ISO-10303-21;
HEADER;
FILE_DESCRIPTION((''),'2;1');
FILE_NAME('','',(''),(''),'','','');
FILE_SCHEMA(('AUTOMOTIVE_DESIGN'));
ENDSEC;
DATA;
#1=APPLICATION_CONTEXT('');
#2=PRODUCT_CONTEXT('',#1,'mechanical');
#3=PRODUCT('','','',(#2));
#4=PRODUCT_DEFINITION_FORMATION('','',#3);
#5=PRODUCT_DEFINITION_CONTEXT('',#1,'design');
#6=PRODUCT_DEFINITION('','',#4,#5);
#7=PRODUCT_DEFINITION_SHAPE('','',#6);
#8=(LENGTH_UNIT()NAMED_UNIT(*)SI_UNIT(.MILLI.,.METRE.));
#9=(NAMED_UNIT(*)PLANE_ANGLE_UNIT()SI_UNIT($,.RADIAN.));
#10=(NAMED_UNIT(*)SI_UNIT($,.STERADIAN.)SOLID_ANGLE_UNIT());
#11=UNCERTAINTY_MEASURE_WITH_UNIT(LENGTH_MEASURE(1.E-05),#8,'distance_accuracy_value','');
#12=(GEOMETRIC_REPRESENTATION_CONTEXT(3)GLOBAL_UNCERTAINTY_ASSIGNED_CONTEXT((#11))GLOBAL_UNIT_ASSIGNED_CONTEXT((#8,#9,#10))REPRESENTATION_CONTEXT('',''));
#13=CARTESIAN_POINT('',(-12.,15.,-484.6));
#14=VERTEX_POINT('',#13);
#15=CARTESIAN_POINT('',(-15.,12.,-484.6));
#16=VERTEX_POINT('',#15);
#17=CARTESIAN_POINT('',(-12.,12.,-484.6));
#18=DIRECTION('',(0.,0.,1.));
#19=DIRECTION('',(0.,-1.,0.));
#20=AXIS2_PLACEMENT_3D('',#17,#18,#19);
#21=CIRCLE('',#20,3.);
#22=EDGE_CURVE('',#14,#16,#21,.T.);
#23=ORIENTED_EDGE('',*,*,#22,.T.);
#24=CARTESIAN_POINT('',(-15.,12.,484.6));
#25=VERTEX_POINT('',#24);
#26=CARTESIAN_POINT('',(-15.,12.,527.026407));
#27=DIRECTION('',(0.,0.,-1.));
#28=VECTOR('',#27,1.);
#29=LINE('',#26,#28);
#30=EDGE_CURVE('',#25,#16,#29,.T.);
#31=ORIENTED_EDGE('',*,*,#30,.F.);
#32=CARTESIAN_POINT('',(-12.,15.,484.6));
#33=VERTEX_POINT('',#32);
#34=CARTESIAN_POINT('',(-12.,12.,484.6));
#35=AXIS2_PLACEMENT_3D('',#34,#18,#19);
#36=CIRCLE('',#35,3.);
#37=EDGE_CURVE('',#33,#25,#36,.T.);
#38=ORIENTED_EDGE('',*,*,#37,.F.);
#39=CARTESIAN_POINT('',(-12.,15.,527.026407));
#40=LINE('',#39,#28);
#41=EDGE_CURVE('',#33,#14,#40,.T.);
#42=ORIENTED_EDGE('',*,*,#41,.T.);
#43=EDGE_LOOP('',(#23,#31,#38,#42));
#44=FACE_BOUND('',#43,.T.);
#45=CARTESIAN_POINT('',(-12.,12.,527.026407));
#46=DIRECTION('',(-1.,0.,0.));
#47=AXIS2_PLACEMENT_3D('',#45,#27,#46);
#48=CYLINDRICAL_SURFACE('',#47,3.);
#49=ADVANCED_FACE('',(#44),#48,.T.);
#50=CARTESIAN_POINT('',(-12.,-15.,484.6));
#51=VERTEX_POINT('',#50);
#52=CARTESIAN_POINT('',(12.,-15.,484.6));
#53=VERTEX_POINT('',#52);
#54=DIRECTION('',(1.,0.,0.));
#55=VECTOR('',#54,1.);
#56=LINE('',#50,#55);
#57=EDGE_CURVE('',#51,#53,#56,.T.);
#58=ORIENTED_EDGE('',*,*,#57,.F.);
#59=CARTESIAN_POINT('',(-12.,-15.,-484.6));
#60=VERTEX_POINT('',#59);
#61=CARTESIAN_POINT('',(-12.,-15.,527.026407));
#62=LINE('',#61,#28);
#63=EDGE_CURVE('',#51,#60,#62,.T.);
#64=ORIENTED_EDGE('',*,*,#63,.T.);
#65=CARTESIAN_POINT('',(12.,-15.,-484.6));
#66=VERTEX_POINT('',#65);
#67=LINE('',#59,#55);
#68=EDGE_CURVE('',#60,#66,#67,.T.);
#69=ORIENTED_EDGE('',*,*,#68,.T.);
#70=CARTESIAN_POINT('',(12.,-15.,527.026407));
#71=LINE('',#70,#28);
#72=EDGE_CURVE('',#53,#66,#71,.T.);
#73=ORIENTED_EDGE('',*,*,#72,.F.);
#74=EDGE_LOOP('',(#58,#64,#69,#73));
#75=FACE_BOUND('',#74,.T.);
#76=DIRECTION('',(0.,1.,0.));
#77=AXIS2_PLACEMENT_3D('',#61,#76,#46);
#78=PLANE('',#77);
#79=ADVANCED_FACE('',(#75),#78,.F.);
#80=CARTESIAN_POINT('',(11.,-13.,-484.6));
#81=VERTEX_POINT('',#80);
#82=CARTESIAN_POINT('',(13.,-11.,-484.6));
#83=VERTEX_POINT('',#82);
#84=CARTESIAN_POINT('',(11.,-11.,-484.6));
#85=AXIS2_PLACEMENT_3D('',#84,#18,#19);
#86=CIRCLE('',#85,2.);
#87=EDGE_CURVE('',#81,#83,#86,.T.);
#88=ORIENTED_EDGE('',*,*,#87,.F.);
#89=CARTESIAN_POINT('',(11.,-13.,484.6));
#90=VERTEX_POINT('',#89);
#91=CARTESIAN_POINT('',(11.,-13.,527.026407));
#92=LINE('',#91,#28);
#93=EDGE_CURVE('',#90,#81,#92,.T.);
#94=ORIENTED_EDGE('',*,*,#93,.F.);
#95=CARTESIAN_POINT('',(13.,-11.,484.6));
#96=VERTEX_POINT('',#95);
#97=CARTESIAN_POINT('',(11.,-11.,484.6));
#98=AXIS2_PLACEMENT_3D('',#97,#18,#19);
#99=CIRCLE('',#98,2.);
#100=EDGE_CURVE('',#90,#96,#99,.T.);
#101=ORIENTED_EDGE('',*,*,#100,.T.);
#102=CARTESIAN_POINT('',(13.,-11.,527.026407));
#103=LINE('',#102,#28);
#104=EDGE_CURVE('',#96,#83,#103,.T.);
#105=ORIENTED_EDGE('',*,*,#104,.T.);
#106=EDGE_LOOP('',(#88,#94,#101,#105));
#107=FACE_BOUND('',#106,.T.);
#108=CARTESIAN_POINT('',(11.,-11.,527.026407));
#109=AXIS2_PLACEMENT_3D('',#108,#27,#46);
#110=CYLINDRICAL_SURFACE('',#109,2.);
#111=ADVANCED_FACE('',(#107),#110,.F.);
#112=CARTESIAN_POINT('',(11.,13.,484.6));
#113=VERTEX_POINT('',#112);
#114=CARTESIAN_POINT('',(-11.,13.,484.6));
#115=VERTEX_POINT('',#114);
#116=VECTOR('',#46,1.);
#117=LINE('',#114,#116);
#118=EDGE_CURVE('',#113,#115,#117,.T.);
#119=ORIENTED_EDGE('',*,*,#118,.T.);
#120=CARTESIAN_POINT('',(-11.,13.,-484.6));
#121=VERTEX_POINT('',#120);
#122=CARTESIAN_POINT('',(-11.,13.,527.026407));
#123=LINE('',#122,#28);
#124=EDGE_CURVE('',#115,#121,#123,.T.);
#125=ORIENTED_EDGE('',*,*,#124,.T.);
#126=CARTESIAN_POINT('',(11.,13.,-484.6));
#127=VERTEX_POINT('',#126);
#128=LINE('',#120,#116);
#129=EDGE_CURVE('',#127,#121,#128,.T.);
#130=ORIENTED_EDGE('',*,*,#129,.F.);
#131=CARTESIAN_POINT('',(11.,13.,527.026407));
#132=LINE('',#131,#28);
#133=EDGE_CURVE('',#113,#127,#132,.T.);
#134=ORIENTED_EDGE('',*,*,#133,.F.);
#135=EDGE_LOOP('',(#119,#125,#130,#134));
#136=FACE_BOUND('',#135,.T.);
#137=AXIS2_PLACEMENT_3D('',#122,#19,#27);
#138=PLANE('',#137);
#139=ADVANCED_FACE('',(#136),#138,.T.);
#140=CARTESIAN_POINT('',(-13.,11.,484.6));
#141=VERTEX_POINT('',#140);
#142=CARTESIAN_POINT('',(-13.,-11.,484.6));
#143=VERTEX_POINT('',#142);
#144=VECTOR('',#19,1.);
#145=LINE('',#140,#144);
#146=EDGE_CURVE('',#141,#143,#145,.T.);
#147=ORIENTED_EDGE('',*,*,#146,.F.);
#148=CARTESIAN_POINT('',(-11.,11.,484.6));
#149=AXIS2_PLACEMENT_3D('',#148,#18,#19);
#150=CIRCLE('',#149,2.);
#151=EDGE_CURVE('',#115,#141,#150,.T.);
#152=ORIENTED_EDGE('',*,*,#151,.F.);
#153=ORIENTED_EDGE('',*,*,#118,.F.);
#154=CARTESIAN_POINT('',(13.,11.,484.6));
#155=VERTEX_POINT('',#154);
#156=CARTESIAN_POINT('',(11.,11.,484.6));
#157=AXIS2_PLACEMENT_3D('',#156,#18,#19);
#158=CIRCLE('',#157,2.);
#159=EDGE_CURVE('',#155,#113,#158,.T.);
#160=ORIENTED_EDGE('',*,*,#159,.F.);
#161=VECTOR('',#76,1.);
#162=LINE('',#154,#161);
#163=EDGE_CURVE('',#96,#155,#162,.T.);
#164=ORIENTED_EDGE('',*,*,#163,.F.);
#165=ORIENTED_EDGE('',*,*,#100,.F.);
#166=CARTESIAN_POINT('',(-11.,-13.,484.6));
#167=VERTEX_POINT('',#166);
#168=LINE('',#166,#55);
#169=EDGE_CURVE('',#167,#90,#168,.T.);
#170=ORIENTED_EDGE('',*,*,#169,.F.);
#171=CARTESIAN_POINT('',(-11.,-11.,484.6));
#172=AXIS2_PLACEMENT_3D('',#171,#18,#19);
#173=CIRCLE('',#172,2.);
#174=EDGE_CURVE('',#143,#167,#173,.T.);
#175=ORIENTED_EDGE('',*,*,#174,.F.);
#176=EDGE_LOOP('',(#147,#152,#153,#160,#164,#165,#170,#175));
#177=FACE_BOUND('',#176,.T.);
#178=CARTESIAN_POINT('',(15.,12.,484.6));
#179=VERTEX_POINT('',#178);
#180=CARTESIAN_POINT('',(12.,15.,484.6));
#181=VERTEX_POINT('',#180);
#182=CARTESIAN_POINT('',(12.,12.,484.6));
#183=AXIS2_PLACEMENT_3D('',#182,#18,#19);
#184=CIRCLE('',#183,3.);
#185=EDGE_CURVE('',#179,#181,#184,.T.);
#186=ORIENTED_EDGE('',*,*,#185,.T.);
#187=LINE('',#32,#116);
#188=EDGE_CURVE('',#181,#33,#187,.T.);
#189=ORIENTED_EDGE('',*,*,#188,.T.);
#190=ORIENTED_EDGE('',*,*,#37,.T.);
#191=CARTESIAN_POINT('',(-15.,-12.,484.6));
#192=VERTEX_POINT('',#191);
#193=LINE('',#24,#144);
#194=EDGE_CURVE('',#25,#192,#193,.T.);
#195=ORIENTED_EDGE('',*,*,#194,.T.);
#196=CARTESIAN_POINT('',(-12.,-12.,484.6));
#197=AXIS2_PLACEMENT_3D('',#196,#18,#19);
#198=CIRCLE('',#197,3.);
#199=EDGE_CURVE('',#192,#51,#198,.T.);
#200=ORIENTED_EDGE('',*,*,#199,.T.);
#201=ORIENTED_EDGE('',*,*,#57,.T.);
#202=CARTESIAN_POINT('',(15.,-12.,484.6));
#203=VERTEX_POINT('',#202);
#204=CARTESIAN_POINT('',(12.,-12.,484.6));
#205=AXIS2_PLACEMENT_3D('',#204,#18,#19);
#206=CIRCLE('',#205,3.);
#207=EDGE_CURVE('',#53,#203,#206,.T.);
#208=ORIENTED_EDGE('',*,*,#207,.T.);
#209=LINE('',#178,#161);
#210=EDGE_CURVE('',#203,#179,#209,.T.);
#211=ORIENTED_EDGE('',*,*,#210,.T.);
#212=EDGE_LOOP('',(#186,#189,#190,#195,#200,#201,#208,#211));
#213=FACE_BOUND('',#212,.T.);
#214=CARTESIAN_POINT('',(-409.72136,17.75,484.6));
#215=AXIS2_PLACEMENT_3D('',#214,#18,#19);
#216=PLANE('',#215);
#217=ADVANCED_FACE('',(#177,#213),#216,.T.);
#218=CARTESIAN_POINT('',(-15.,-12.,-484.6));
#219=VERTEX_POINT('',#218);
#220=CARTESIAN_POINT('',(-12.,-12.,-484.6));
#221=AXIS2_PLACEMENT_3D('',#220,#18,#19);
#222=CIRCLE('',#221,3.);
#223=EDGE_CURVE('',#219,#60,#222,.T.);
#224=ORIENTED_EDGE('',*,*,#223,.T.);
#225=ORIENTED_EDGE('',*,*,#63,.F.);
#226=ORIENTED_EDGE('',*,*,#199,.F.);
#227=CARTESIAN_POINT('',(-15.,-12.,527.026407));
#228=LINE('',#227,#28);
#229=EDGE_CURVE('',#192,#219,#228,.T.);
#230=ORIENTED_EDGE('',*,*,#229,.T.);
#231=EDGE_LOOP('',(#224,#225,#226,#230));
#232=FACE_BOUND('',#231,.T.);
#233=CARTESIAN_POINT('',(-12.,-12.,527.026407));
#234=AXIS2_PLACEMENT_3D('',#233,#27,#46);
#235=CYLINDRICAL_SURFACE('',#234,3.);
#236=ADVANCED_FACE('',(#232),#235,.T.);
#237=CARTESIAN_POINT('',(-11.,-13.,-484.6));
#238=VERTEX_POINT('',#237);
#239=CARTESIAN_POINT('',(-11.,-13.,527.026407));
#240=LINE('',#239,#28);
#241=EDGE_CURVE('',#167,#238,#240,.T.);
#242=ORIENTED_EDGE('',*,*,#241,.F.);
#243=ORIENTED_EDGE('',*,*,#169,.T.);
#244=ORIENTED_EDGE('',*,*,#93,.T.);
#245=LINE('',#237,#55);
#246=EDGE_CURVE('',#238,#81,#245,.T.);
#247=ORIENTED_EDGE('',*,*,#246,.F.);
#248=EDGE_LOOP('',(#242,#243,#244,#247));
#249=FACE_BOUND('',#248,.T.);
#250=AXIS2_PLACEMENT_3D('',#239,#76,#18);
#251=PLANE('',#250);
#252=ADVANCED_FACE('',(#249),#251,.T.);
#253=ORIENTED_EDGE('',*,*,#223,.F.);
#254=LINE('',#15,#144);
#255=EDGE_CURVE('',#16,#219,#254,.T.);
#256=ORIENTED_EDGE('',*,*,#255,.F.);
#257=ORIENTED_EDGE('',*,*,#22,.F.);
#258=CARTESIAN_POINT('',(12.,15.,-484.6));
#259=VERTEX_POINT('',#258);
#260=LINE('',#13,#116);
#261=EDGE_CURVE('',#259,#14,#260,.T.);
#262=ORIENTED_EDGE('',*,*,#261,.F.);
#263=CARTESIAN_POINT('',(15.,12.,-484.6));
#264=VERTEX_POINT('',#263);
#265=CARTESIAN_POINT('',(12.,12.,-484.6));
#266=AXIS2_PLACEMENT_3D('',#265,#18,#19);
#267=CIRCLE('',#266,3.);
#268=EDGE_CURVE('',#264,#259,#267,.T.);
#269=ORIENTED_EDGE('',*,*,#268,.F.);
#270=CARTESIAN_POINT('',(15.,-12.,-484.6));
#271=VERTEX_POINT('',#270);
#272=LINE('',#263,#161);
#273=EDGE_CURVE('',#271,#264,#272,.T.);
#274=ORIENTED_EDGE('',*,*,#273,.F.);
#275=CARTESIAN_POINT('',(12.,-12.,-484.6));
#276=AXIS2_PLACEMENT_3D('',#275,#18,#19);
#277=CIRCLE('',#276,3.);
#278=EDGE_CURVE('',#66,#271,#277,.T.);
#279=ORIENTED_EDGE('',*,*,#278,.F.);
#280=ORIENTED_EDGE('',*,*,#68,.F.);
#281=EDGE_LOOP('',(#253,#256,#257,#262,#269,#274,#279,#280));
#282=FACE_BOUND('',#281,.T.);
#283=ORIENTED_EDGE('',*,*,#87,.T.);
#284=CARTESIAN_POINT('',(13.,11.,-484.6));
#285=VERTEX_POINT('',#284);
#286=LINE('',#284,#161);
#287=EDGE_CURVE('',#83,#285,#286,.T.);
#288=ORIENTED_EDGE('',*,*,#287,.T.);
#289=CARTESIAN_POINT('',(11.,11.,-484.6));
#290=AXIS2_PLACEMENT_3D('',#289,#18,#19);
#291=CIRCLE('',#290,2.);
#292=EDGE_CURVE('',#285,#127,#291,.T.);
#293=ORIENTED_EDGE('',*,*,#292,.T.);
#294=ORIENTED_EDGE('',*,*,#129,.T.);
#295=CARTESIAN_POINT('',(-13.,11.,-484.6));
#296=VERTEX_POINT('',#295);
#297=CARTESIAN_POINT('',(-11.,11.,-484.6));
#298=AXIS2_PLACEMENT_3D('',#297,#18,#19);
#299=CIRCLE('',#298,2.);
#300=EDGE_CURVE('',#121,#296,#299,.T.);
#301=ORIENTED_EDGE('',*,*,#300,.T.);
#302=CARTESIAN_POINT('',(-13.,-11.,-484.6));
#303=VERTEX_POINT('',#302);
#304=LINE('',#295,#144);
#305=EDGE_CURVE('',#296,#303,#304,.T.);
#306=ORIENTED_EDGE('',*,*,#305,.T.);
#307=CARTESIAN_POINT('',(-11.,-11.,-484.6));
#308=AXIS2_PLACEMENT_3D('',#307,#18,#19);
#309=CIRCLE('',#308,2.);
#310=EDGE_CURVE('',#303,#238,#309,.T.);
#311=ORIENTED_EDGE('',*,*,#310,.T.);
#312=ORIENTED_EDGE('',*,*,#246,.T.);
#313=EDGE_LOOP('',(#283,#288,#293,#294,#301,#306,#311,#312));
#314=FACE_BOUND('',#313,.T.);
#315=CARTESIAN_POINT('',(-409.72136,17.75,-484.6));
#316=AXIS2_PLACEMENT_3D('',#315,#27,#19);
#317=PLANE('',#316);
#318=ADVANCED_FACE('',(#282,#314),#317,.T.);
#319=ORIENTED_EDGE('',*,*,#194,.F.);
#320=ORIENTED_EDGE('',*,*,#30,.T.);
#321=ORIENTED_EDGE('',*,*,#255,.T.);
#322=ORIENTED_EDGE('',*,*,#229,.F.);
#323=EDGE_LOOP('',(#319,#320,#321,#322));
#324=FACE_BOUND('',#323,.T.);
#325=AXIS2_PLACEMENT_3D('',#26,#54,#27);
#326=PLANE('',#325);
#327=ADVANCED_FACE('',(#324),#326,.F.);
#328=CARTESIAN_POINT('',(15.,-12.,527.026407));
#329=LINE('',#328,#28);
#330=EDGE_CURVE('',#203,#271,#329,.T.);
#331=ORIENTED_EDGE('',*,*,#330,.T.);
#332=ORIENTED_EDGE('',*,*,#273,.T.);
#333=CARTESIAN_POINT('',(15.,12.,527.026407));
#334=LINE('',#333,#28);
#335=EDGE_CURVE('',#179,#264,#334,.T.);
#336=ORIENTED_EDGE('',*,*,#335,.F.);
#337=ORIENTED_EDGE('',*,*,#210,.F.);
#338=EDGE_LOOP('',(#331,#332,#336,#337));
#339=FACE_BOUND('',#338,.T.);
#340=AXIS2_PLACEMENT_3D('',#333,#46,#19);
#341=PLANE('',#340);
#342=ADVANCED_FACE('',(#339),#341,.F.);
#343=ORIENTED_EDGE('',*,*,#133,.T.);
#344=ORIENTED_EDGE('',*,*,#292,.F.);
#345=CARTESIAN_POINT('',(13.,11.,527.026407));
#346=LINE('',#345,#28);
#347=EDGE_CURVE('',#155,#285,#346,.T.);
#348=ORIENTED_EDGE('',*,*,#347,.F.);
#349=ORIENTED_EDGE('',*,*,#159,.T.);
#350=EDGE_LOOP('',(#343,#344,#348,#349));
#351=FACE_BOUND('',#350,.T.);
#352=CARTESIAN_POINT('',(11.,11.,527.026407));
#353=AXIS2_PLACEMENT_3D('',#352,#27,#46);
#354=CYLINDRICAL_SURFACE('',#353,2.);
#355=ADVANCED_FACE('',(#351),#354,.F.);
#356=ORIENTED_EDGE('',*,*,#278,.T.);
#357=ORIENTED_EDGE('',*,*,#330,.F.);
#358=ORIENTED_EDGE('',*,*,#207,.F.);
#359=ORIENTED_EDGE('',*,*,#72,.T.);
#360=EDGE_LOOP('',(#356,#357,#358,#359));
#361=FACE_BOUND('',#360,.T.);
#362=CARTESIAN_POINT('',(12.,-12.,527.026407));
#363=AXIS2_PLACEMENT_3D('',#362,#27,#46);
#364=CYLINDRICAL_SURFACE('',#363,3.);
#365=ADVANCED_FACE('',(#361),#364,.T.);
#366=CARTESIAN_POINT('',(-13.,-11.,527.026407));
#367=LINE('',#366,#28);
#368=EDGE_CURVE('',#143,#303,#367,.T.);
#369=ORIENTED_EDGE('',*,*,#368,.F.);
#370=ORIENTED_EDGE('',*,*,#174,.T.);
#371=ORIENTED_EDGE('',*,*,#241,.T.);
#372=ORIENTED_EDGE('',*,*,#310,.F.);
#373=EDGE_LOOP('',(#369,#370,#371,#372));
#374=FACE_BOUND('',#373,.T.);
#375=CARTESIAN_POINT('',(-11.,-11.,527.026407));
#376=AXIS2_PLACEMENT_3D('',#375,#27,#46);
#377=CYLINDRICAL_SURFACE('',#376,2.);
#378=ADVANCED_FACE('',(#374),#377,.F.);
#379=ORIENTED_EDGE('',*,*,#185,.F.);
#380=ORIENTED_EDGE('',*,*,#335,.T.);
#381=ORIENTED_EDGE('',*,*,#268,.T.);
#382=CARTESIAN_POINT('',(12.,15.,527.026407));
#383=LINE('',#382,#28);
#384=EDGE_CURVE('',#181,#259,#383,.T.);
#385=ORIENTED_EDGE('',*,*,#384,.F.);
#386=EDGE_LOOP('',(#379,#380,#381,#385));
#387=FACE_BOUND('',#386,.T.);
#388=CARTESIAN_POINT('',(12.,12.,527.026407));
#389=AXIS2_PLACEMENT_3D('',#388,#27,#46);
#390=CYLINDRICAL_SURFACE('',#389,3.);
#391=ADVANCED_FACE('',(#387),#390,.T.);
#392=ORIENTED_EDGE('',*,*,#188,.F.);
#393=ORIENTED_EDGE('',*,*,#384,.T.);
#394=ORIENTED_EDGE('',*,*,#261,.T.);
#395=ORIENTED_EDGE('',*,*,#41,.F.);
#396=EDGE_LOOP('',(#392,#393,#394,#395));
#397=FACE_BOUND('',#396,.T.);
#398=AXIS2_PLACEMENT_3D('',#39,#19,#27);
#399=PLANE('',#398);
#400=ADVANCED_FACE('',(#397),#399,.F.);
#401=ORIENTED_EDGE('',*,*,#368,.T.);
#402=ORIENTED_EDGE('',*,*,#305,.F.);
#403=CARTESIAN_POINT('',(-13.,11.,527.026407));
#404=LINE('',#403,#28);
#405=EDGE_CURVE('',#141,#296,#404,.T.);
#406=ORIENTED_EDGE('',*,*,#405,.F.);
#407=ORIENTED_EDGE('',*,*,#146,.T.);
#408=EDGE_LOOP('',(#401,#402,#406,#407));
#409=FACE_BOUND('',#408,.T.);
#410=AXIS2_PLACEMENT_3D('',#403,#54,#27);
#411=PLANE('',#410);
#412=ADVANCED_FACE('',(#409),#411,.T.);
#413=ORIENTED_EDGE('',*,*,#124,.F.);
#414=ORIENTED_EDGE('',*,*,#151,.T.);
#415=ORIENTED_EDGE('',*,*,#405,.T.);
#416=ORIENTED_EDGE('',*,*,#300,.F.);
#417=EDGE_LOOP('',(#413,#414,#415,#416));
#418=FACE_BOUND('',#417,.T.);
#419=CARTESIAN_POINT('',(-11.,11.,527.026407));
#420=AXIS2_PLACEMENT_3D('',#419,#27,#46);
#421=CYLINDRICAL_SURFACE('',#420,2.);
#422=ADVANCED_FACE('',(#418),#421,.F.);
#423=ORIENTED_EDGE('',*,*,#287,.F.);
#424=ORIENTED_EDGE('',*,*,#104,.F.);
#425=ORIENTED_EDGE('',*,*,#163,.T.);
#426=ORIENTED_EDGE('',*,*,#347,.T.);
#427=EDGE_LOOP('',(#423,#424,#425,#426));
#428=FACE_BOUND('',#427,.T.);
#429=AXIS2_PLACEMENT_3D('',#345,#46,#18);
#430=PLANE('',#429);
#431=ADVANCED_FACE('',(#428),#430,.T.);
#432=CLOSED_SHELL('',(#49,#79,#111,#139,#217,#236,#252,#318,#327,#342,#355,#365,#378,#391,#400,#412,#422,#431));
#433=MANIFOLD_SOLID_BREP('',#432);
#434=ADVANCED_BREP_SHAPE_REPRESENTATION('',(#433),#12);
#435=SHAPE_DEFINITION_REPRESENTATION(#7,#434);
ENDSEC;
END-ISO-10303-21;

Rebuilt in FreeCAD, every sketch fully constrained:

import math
import FreeCAD as App
import Part
import Sketcher

doc = App.newDocument("Part")
body = doc.addObject("PartDesign::Body", "Body")

# Sketch on XY plane
sketch1 = body.newObject("Sketcher::SketchObject", "Sketch")
sketch1.AttachmentSupport = (doc.getObject("XY_Plane"), [""])
sketch1.MapMode = "FlatFace"
sketch1.addGeometry([
    Part.LineSegment(App.Vector(12, 15, 0), App.Vector(-12, 15, 0)),  # 0
    Part.ArcOfCircle(Part.Circle(App.Vector(-12, 12, 0), App.Vector(0, 0, 1), 3), math.radians(90), math.radians(180)),  # 1
    Part.LineSegment(App.Vector(-15, 12, 0), App.Vector(-15, -12, 0)),  # 2
    Part.ArcOfCircle(Part.Circle(App.Vector(-12, -12, 0), App.Vector(0, 0, 1), 3), math.radians(180), math.radians(270)),  # 3
    Part.LineSegment(App.Vector(-12, -15, 0), App.Vector(12, -15, 0)),  # 4
    Part.ArcOfCircle(Part.Circle(App.Vector(12, -12, 0), App.Vector(0, 0, 1), 3), math.radians(-90), math.radians(0)),  # 5
    Part.LineSegment(App.Vector(15, -12, 0), App.Vector(15, 12, 0)),  # 6
    Part.ArcOfCircle(Part.Circle(App.Vector(12, 12, 0), App.Vector(0, 0, 1), 3), math.radians(0), math.radians(90)),  # 7
    Part.LineSegment(App.Vector(-11, 13, 0), App.Vector(11, 13, 0)),  # 8
    Part.ArcOfCircle(Part.Circle(App.Vector(11, 11, 0), App.Vector(0, 0, 1), 2), math.radians(0), math.radians(90)),  # 9
    Part.LineSegment(App.Vector(13, 11, 0), App.Vector(13, -11, 0)),  # 10
    Part.ArcOfCircle(Part.Circle(App.Vector(11, -11, 0), App.Vector(0, 0, 1), 2), math.radians(-90), math.radians(0)),  # 11
    Part.LineSegment(App.Vector(11, -13, 0), App.Vector(-11, -13, 0)),  # 12
    Part.ArcOfCircle(Part.Circle(App.Vector(-11, -11, 0), App.Vector(0, 0, 1), 2), math.radians(-180), math.radians(-90)),  # 13
    Part.LineSegment(App.Vector(-13, -11, 0), App.Vector(-13, 11, 0)),  # 14
    Part.ArcOfCircle(Part.Circle(App.Vector(-11, 11, 0), App.Vector(0, 0, 1), 2), math.radians(90), math.radians(180)),  # 15
], False)
sketch1.addConstraint([
    Sketcher.Constraint("Tangent", 0, 2, 1, 1),
    Sketcher.Constraint("Tangent", 1, 2, 2, 1),
    Sketcher.Constraint("Tangent", 2, 2, 3, 1),
    Sketcher.Constraint("Tangent", 3, 2, 4, 1),
    Sketcher.Constraint("Tangent", 4, 2, 5, 1),
    Sketcher.Constraint("Tangent", 5, 2, 6, 1),
    Sketcher.Constraint("Tangent", 6, 2, 7, 1),
    Sketcher.Constraint("Tangent", 7, 2, 0, 1),
    Sketcher.Constraint("Tangent", 8, 2, 9, 2),
    Sketcher.Constraint("Tangent", 9, 1, 10, 1),
    Sketcher.Constraint("Tangent", 10, 2, 11, 2),
    Sketcher.Constraint("Tangent", 11, 1, 12, 1),
    Sketcher.Constraint("Tangent", 12, 2, 13, 2),
    Sketcher.Constraint("Tangent", 13, 1, 14, 1),
    Sketcher.Constraint("Tangent", 14, 2, 15, 2),
    Sketcher.Constraint("Tangent", 15, 1, 8, 1),
    Sketcher.Constraint("Horizontal", 0),
    Sketcher.Constraint("Vertical", 2),
    Sketcher.Constraint("Horizontal", 4),
    Sketcher.Constraint("Vertical", 6),
    Sketcher.Constraint("Horizontal", 8),
    Sketcher.Constraint("Vertical", 10),
    Sketcher.Constraint("Horizontal", 12),
    Sketcher.Constraint("Vertical", 14),
    Sketcher.Constraint("Equal", 1, 3),
    Sketcher.Constraint("Equal", 3, 5),
    Sketcher.Constraint("Equal", 5, 7),
    Sketcher.Constraint("Equal", 9, 11),
    Sketcher.Constraint("Equal", 11, 13),
    Sketcher.Constraint("Equal", 13, 15),
    Sketcher.Constraint("Symmetric", 1, 3, 5, 3, -1, 1),
    Sketcher.Constraint("Symmetric", 9, 3, 13, 3, -1, 1),
    Sketcher.Constraint("Equal", 4, 2),
    Sketcher.Constraint("Equal", 12, 10),
    Sketcher.Constraint("Radius", 1, 3.0),
    Sketcher.Constraint("Radius", 9, 2.0),
    Sketcher.Constraint("DistanceX", 0, 2, 0, 1, 24.0),
    Sketcher.Constraint("DistanceX", 8, 1, 8, 2, 22.0),
])
pad1 = body.newObject("PartDesign::Pad", "Pad")
pad1.Profile = sketch1
pad1.Length = 484.6
body2 = doc.addObject("PartDesign::Body", "Body001")
doc.recompute()

body2.BaseFeature = body
doc.recompute()

mirroring = doc.addObject("Part::Mirroring", "Mirroring")
mirroring.Source = body
mirroring.Base = App.Vector(-12, -12, 0)
mirroring.Normal = App.Vector(0, 0, 1)
body3 = doc.addObject("PartDesign::Body", "Body002")
body3.BaseFeature = mirroring
boolean = body2.newObject("PartDesign::Boolean", "Boolean")
boolean.Type = "Fuse"
boolean.addObjects([body3])
doc.recompute()
mirroring.Visibility = False

doc.recompute()
